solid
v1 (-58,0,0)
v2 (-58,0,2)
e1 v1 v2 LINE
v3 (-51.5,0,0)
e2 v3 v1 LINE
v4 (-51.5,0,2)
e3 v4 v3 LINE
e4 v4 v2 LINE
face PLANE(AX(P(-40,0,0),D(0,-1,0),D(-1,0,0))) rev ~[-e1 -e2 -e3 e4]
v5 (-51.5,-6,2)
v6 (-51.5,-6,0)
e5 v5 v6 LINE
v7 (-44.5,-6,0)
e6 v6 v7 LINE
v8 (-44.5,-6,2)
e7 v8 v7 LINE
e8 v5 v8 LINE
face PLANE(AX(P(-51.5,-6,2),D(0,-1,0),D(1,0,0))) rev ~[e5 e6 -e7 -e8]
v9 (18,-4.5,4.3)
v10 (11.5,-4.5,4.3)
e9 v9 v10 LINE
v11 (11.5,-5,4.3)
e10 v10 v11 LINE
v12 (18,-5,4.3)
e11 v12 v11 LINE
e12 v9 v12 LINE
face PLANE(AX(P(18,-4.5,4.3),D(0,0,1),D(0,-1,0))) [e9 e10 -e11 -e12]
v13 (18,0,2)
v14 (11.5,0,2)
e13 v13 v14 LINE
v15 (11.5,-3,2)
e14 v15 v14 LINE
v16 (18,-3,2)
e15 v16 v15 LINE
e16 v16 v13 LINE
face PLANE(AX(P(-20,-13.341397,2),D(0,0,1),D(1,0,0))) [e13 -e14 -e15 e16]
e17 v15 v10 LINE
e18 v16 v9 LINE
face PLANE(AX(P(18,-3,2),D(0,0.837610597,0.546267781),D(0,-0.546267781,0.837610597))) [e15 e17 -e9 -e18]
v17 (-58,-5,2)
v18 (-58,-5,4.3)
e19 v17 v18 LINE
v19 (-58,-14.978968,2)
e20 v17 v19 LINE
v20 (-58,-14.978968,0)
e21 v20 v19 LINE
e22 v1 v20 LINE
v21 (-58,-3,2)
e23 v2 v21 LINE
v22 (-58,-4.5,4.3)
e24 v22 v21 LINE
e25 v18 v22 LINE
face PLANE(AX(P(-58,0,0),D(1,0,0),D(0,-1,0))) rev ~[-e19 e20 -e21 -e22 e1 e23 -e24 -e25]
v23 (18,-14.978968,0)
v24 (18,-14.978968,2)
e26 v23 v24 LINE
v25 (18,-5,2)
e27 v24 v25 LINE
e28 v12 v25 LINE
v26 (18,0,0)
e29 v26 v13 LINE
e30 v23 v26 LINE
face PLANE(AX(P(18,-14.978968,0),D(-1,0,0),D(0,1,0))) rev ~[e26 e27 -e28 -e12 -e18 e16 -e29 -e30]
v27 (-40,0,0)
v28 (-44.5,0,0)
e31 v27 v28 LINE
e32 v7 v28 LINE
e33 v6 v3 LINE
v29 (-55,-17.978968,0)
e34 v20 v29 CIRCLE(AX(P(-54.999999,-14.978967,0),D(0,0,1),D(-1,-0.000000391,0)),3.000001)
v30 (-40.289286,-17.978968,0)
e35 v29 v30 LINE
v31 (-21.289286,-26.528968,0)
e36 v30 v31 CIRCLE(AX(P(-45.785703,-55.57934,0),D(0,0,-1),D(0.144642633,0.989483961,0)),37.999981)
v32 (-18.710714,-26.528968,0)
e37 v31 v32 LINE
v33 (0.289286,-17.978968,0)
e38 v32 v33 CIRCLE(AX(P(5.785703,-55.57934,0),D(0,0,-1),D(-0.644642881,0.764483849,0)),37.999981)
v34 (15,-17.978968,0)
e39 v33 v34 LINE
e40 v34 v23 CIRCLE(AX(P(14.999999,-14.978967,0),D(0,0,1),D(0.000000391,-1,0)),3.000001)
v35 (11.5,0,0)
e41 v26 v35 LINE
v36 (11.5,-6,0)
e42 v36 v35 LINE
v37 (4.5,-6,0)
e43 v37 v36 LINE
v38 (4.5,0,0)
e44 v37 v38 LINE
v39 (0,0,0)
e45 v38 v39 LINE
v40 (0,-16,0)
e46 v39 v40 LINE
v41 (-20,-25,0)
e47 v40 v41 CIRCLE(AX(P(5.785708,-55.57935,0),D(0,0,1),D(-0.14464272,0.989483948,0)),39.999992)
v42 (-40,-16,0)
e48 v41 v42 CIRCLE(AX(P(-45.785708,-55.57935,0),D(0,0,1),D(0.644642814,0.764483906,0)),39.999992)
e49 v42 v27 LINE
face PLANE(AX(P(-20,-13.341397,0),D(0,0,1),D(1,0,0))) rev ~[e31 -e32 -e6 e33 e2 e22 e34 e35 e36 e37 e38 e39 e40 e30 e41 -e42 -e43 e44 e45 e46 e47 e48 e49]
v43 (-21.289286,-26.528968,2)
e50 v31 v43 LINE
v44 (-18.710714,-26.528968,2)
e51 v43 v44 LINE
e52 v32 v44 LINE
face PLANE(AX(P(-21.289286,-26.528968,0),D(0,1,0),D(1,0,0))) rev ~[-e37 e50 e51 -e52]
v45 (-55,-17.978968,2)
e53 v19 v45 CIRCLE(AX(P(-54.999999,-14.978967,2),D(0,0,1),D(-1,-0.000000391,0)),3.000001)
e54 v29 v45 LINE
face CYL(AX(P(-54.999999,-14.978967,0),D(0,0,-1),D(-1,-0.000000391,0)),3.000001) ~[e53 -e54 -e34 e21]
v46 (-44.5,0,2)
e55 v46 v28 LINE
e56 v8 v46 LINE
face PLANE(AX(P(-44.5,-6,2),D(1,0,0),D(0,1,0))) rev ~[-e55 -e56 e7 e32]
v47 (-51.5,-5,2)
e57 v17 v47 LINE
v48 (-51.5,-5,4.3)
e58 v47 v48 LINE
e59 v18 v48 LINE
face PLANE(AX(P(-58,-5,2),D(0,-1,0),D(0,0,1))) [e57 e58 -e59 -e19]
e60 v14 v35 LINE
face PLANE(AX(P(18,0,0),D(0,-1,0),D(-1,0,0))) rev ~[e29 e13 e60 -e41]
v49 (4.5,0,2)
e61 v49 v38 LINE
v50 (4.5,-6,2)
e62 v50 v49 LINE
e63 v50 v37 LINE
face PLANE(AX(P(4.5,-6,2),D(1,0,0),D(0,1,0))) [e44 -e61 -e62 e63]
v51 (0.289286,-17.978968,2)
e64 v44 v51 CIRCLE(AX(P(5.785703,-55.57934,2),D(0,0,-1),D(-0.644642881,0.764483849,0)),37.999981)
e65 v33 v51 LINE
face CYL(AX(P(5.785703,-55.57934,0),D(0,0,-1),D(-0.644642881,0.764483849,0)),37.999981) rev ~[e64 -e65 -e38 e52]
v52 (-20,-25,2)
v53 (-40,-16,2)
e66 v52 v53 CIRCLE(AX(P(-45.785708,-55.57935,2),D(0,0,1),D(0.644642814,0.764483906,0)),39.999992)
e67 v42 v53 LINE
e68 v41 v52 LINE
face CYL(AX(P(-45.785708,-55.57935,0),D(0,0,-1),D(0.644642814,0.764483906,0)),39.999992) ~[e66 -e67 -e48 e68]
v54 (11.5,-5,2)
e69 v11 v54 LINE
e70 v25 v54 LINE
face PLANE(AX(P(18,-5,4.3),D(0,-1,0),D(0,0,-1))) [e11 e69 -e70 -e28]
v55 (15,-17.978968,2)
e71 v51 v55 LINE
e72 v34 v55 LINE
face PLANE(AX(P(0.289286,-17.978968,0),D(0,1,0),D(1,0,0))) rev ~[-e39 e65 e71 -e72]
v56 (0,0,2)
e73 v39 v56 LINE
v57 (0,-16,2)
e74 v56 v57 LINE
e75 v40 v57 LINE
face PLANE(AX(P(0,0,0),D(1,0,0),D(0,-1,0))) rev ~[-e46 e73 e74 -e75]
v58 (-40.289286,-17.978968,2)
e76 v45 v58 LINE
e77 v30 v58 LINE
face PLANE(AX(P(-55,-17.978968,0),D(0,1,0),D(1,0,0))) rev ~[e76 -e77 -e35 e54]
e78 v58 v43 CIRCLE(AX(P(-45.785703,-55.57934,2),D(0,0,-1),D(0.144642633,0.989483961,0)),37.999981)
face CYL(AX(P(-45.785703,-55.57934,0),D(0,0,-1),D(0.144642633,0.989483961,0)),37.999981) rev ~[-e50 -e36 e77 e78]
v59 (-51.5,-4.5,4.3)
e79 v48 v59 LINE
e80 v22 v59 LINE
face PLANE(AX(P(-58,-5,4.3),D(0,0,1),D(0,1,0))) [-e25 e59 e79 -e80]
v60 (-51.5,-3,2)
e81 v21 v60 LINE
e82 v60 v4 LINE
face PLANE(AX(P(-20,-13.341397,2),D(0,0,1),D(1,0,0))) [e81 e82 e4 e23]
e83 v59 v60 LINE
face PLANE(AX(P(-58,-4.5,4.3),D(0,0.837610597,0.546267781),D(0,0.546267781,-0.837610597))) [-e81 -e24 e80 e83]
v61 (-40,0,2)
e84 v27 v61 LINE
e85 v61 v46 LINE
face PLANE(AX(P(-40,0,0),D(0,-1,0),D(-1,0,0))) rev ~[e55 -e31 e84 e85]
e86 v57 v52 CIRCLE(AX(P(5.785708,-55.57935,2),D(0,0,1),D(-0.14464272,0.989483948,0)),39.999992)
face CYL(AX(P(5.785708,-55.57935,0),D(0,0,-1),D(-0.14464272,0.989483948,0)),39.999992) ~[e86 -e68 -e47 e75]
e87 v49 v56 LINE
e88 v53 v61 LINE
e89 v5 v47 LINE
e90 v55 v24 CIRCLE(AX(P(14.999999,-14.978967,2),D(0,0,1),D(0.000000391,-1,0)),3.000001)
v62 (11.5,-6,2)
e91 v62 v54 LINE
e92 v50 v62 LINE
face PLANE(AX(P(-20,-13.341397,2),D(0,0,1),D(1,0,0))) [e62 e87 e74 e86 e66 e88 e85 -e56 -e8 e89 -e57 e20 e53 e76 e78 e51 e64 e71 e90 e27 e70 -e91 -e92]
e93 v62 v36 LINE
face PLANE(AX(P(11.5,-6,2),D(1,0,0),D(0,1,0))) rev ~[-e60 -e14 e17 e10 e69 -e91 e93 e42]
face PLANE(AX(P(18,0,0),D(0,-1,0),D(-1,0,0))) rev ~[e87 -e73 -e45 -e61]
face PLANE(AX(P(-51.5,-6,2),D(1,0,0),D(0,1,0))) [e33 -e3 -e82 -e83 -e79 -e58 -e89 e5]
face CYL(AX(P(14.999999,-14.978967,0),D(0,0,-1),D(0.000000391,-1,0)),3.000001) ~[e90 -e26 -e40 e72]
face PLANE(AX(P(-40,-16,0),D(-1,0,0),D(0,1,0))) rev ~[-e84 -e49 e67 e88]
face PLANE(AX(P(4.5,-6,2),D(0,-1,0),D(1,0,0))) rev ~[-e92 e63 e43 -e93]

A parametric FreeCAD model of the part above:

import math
import FreeCAD as App
import Part
import Sketcher
Q = App.Units.Quantity


def add_polygon(sketch, points):
    """Adds a closed chain of lines whose ends are joined by coincident constraints."""
    first, n = sketch.GeometryCount, len(points)
    for a, b in zip(points, points[1:] + points[:1]):
        sketch.addGeometry(Part.LineSegment(App.Vector(*a, 0), App.Vector(*b, 0)), False)
    for i in range(n):
        sketch.addConstraint(Sketcher.Constraint("Coincident", first + i, 2, first + (i + 1) % n, 1))

doc = App.newDocument("Part")
body = doc.addObject("PartDesign::Body", "Body")

# Sketch on XY plane
sketch1 = body.newObject("Sketcher::SketchObject", "Sketch")
sketch1.AttachmentSupport = (doc.getObject("XY_Plane"), [""])
sketch1.MapMode = "FlatFace"
sketch1.addGeometry([
    Part.LineSegment(App.Vector(-40, -16, 0), App.Vector(-40, 0, 0)),  # 0
    Part.LineSegment(App.Vector(-40, 0, 0), App.Vector(-58, 0, 0)),  # 1
    Part.LineSegment(App.Vector(-58, 0, 0), App.Vector(-58, -15, 0)),  # 2
    Part.ArcOfCircle(Part.Circle(App.Vector(-55, -15, 0), App.Vector(0, 0, 1), 3), math.radians(-180), math.radians(-90)),  # 3
    Part.LineSegment(App.Vector(-55, -18, 0), App.Vector(-40.3, -18, 0)),  # 4
    Part.ArcOfCircle(Part.Circle(App.Vector(-45.8, -55.6, 0), App.Vector(0, 0, 1), 38), math.radians(50), math.radians(82)),  # 5
    Part.LineSegment(App.Vector(-21.3, -26.5, 0), App.Vector(-18.7, -26.5, 0)),  # 6
    Part.ArcOfCircle(Part.Circle(App.Vector(5.8, -55.6, 0), App.Vector(0, 0, 1), 38), math.radians(98), math.radians(130)),  # 7
    Part.LineSegment(App.Vector(0.3, -18, 0), App.Vector(15, -18, 0)),  # 8
    Part.ArcOfCircle(Part.Circle(App.Vector(15, -15, 0), App.Vector(0, 0, 1), 3), math.radians(-90), math.radians(0)),  # 9
    Part.LineSegment(App.Vector(18, -15, 0), App.Vector(18, 0, 0)),  # 10
    Part.LineSegment(App.Vector(18, 0, 0), App.Vector(0, 0, 0)),  # 11
    Part.LineSegment(App.Vector(0, 0, 0), App.Vector(0, -16, 0)),  # 12
    Part.ArcOfCircle(Part.Circle(App.Vector(5.8, -55.6, 0), App.Vector(0, 0, 1), 40), math.radians(98), math.radians(130)),  # 13
    Part.ArcOfCircle(Part.Circle(App.Vector(-45.8, -55.6, 0), App.Vector(0, 0, 1), 40), math.radians(50), math.radians(82)),  # 14
], False)
sketch1.addConstraint([
    Sketcher.Constraint("Coincident", 0, 2, 1, 1),
    Sketcher.Constraint("Coincident", 1, 2, 2, 1),
    Sketcher.Constraint("Tangent", 2, 2, 3, 1),
    Sketcher.Constraint("Tangent", 3, 2, 4, 1),
    Sketcher.Constraint("Coincident", 4, 2, 5, 2),
    Sketcher.Constraint("Coincident", 5, 1, 6, 1),
    Sketcher.Constraint("Coincident", 6, 2, 7, 2),
    Sketcher.Constraint("Coincident", 7, 1, 8, 1),
    Sketcher.Constraint("Tangent", 8, 2, 9, 1),
    Sketcher.Constraint("Tangent", 9, 2, 10, 1),
    Sketcher.Constraint("Coincident", 10, 2, 11, 1),
    Sketcher.Constraint("Coincident", 11, 2, 12, 1),
    Sketcher.Constraint("Coincident", 12, 2, 13, 1),
    Sketcher.Constraint("Coincident", 13, 2, 14, 1),
    Sketcher.Constraint("Coincident", 14, 2, 0, 1),
    Sketcher.Constraint("Vertical", 0),
    Sketcher.Constraint("Horizontal", 1),
    Sketcher.Constraint("Vertical", 2),
    Sketcher.Constraint("Horizontal", 4),
    Sketcher.Constraint("Horizontal", 6),
    Sketcher.Constraint("Horizontal", 8),
    Sketcher.Constraint("Vertical", 10),
    Sketcher.Constraint("Horizontal", 11),
    Sketcher.Constraint("Vertical", 12),
    Sketcher.Constraint("Coincident", 11, 2, -1, 1),
    Sketcher.Constraint("Equal", 5, 7),
    Sketcher.Constraint("Equal", 3, 9),
    Sketcher.Constraint("Equal", 13, 14),
    Sketcher.Constraint("PointOnObject", 0, 2, -1),
    Sketcher.Constraint("Horizontal", 5, 3, 7, 3),
    Sketcher.Constraint("Horizontal", 3, 3, 9, 3),
    Sketcher.Constraint("Horizontal", 13, 3, 14, 3),
    Sketcher.Constraint("Horizontal", 12, 2, 14, 2),
    Sketcher.Constraint("Equal", 4, 8),
    Sketcher.Constraint("Equal", 1, 11),
    Sketcher.Constraint("Radius", 3, Q("3.000001 mm")),
    Sketcher.Constraint("DistanceX", 1, 2, 1, 1, Q("18 mm")),
    Sketcher.Constraint("DistanceY", 0, 1, 0, 2, Q("16 mm")),
    Sketcher.Constraint("DistanceX", 3, 3, -1, 1, Q("54.999999 mm")),
    Sketcher.Constraint("DistanceY", 13, 2, -1, 1, Q("25 mm")),
    Sketcher.Constraint("DistanceX", 4, 2, 5, 1, Q("19 mm")),
    Sketcher.Constraint("Radius", 5, Q("37.999981 mm")),
    Sketcher.Constraint("DistanceY", 5, 1, 4, 2, Q("8.55 mm")),
    Sketcher.Constraint("Radius", 13, Q("39.999992 mm")),
    Sketcher.Constraint("DistanceX", 4, 1, 4, 2, Q("14.710714 mm")),
    Sketcher.Constraint("DistanceY", 2, 2, 2, 1, Q("14.978968 mm")),
])
pad1 = body.newObject("PartDesign::Pad", "Pad")
pad1.Profile = sketch1
pad1.Length = 2

# Sketch on XY plane
sketch2 = body.newObject("Sketcher::SketchObject", "Sketch001")
sketch2.AttachmentSupport = (doc.getObject("XY_Plane"), [""])
sketch2.MapMode = "FlatFace"
sketch2.AttachmentOffset = App.Placement(App.Vector(0, 0, 2), App.Rotation())
add_polygon(sketch2, [(-52, 0), (-52, -6), (-44, -6), (-44, 0)])  # lines 0-3
add_polygon(sketch2, [(4, 0), (4, -6), (12, -6), (12, 0)])  # lines 4-7
sketch2.addConstraint([
    Sketcher.Constraint("Vertical", 0),
    Sketcher.Constraint("Horizontal", 1),
    Sketcher.Constraint("Vertical", 2),
    Sketcher.Constraint("Horizontal", 3),
    Sketcher.Constraint("Vertical", 4),
    Sketcher.Constraint("Horizontal", 5),
    Sketcher.Constraint("Vertical", 6),
    Sketcher.Constraint("Horizontal", 7),
    Sketcher.Constraint("PointOnObject", 2, 2, -1),
    Sketcher.Constraint("PointOnObject", 6, 2, -1),
    Sketcher.Constraint("Horizontal", 1, 2, 4, 2),
    Sketcher.Constraint("Equal", 3, 5),
    Sketcher.Constraint("DistanceX", 1, 1, 1, 2, Q("7 mm")),
    Sketcher.Constraint("DistanceY", 0, 2, 0, 1, Q("6 mm")),
    Sketcher.Constraint("DistanceX", 1, 2, 4, 2, Q("49 mm")),
    Sketcher.Constraint("DistanceX", 0, 2, -1, 1, Q("51.5 mm")),
])
pocket1 = body.newObject("PartDesign::Pocket", "Pocket")
pocket1.Profile = sketch2
pocket1.Type = "ThroughAll"

# Sketch on YZ plane
sketch3 = body.newObject("Sketcher::SketchObject", "Sketch002")
sketch3.AttachmentSupport = (doc.getObject("YZ_Plane"), [""])
sketch3.MapMode = "FlatFace"
sketch3.AttachmentOffset = App.Placement(App.Vector(0, 0, -58), App.Rotation())
add_polygon(sketch3, [(-4.5, 4.3), (-3, 2), (-5, 2), (-5, 4.3)])  # lines 0-3
sketch3.addConstraint([
    Sketcher.Constraint("Horizontal", 1),
    Sketcher.Constraint("Vertical", 2),
    Sketcher.Constraint("Horizontal", 3),
    Sketcher.Constraint("DistanceX", 1, 2, 1, 1, Q("2 mm")),
    Sketcher.Constraint("DistanceX", 3, 1, 3, 2, Q("0.5 mm")),
    Sketcher.Constraint("DistanceY", 2, 1, 2, 2, Q("2.3 mm")),
    Sketcher.Constraint("DistanceX", 0, 2, -1, 1, Q("3 mm")),
    Sketcher.Constraint("DistanceY", -1, 1, 0, 2, Q("2 mm")),
])
pad2 = body.newObject("PartDesign::Pad", "Pad001")
pad2.Profile = sketch3
pad2.Length = 6.5

# Sketch on YZ plane
sketch4 = body.newObject("Sketcher::SketchObject", "Sketch003")
sketch4.AttachmentSupport = (doc.getObject("YZ_Plane"), [""])
sketch4.MapMode = "FlatFace"
sketch4.AttachmentOffset = App.Placement(App.Vector(0, 0, 18), App.Rotation())
add_polygon(sketch4, [(-3, 2), (-4.5, 4.3), (-5, 4.3), (-5, 2)])  # lines 0-3
sketch4.addConstraint([
    Sketcher.Constraint("Horizontal", 1),
    Sketcher.Constraint("Vertical", 2),
    Sketcher.Constraint("Horizontal", 3),
    Sketcher.Constraint("DistanceX", 3, 1, 3, 2, Q("2 mm")),
    Sketcher.Constraint("DistanceX", 1, 2, 1, 1, Q("0.5 mm")),
    Sketcher.Constraint("DistanceY", 2, 2, 2, 1, Q("2.3 mm")),
    Sketcher.Constraint("DistanceX", 1, 2, -1, 1, Q("5 mm")),
    Sketcher.Constraint("DistanceY", -1, 1, 2, 2, Q("2 mm")),
])
pad3 = body.newObject("PartDesign::Pad", "Pad002")
pad3.Profile = sketch4
pad3.Length = 6.5
pad3.Reversed = True

doc.recompute()
